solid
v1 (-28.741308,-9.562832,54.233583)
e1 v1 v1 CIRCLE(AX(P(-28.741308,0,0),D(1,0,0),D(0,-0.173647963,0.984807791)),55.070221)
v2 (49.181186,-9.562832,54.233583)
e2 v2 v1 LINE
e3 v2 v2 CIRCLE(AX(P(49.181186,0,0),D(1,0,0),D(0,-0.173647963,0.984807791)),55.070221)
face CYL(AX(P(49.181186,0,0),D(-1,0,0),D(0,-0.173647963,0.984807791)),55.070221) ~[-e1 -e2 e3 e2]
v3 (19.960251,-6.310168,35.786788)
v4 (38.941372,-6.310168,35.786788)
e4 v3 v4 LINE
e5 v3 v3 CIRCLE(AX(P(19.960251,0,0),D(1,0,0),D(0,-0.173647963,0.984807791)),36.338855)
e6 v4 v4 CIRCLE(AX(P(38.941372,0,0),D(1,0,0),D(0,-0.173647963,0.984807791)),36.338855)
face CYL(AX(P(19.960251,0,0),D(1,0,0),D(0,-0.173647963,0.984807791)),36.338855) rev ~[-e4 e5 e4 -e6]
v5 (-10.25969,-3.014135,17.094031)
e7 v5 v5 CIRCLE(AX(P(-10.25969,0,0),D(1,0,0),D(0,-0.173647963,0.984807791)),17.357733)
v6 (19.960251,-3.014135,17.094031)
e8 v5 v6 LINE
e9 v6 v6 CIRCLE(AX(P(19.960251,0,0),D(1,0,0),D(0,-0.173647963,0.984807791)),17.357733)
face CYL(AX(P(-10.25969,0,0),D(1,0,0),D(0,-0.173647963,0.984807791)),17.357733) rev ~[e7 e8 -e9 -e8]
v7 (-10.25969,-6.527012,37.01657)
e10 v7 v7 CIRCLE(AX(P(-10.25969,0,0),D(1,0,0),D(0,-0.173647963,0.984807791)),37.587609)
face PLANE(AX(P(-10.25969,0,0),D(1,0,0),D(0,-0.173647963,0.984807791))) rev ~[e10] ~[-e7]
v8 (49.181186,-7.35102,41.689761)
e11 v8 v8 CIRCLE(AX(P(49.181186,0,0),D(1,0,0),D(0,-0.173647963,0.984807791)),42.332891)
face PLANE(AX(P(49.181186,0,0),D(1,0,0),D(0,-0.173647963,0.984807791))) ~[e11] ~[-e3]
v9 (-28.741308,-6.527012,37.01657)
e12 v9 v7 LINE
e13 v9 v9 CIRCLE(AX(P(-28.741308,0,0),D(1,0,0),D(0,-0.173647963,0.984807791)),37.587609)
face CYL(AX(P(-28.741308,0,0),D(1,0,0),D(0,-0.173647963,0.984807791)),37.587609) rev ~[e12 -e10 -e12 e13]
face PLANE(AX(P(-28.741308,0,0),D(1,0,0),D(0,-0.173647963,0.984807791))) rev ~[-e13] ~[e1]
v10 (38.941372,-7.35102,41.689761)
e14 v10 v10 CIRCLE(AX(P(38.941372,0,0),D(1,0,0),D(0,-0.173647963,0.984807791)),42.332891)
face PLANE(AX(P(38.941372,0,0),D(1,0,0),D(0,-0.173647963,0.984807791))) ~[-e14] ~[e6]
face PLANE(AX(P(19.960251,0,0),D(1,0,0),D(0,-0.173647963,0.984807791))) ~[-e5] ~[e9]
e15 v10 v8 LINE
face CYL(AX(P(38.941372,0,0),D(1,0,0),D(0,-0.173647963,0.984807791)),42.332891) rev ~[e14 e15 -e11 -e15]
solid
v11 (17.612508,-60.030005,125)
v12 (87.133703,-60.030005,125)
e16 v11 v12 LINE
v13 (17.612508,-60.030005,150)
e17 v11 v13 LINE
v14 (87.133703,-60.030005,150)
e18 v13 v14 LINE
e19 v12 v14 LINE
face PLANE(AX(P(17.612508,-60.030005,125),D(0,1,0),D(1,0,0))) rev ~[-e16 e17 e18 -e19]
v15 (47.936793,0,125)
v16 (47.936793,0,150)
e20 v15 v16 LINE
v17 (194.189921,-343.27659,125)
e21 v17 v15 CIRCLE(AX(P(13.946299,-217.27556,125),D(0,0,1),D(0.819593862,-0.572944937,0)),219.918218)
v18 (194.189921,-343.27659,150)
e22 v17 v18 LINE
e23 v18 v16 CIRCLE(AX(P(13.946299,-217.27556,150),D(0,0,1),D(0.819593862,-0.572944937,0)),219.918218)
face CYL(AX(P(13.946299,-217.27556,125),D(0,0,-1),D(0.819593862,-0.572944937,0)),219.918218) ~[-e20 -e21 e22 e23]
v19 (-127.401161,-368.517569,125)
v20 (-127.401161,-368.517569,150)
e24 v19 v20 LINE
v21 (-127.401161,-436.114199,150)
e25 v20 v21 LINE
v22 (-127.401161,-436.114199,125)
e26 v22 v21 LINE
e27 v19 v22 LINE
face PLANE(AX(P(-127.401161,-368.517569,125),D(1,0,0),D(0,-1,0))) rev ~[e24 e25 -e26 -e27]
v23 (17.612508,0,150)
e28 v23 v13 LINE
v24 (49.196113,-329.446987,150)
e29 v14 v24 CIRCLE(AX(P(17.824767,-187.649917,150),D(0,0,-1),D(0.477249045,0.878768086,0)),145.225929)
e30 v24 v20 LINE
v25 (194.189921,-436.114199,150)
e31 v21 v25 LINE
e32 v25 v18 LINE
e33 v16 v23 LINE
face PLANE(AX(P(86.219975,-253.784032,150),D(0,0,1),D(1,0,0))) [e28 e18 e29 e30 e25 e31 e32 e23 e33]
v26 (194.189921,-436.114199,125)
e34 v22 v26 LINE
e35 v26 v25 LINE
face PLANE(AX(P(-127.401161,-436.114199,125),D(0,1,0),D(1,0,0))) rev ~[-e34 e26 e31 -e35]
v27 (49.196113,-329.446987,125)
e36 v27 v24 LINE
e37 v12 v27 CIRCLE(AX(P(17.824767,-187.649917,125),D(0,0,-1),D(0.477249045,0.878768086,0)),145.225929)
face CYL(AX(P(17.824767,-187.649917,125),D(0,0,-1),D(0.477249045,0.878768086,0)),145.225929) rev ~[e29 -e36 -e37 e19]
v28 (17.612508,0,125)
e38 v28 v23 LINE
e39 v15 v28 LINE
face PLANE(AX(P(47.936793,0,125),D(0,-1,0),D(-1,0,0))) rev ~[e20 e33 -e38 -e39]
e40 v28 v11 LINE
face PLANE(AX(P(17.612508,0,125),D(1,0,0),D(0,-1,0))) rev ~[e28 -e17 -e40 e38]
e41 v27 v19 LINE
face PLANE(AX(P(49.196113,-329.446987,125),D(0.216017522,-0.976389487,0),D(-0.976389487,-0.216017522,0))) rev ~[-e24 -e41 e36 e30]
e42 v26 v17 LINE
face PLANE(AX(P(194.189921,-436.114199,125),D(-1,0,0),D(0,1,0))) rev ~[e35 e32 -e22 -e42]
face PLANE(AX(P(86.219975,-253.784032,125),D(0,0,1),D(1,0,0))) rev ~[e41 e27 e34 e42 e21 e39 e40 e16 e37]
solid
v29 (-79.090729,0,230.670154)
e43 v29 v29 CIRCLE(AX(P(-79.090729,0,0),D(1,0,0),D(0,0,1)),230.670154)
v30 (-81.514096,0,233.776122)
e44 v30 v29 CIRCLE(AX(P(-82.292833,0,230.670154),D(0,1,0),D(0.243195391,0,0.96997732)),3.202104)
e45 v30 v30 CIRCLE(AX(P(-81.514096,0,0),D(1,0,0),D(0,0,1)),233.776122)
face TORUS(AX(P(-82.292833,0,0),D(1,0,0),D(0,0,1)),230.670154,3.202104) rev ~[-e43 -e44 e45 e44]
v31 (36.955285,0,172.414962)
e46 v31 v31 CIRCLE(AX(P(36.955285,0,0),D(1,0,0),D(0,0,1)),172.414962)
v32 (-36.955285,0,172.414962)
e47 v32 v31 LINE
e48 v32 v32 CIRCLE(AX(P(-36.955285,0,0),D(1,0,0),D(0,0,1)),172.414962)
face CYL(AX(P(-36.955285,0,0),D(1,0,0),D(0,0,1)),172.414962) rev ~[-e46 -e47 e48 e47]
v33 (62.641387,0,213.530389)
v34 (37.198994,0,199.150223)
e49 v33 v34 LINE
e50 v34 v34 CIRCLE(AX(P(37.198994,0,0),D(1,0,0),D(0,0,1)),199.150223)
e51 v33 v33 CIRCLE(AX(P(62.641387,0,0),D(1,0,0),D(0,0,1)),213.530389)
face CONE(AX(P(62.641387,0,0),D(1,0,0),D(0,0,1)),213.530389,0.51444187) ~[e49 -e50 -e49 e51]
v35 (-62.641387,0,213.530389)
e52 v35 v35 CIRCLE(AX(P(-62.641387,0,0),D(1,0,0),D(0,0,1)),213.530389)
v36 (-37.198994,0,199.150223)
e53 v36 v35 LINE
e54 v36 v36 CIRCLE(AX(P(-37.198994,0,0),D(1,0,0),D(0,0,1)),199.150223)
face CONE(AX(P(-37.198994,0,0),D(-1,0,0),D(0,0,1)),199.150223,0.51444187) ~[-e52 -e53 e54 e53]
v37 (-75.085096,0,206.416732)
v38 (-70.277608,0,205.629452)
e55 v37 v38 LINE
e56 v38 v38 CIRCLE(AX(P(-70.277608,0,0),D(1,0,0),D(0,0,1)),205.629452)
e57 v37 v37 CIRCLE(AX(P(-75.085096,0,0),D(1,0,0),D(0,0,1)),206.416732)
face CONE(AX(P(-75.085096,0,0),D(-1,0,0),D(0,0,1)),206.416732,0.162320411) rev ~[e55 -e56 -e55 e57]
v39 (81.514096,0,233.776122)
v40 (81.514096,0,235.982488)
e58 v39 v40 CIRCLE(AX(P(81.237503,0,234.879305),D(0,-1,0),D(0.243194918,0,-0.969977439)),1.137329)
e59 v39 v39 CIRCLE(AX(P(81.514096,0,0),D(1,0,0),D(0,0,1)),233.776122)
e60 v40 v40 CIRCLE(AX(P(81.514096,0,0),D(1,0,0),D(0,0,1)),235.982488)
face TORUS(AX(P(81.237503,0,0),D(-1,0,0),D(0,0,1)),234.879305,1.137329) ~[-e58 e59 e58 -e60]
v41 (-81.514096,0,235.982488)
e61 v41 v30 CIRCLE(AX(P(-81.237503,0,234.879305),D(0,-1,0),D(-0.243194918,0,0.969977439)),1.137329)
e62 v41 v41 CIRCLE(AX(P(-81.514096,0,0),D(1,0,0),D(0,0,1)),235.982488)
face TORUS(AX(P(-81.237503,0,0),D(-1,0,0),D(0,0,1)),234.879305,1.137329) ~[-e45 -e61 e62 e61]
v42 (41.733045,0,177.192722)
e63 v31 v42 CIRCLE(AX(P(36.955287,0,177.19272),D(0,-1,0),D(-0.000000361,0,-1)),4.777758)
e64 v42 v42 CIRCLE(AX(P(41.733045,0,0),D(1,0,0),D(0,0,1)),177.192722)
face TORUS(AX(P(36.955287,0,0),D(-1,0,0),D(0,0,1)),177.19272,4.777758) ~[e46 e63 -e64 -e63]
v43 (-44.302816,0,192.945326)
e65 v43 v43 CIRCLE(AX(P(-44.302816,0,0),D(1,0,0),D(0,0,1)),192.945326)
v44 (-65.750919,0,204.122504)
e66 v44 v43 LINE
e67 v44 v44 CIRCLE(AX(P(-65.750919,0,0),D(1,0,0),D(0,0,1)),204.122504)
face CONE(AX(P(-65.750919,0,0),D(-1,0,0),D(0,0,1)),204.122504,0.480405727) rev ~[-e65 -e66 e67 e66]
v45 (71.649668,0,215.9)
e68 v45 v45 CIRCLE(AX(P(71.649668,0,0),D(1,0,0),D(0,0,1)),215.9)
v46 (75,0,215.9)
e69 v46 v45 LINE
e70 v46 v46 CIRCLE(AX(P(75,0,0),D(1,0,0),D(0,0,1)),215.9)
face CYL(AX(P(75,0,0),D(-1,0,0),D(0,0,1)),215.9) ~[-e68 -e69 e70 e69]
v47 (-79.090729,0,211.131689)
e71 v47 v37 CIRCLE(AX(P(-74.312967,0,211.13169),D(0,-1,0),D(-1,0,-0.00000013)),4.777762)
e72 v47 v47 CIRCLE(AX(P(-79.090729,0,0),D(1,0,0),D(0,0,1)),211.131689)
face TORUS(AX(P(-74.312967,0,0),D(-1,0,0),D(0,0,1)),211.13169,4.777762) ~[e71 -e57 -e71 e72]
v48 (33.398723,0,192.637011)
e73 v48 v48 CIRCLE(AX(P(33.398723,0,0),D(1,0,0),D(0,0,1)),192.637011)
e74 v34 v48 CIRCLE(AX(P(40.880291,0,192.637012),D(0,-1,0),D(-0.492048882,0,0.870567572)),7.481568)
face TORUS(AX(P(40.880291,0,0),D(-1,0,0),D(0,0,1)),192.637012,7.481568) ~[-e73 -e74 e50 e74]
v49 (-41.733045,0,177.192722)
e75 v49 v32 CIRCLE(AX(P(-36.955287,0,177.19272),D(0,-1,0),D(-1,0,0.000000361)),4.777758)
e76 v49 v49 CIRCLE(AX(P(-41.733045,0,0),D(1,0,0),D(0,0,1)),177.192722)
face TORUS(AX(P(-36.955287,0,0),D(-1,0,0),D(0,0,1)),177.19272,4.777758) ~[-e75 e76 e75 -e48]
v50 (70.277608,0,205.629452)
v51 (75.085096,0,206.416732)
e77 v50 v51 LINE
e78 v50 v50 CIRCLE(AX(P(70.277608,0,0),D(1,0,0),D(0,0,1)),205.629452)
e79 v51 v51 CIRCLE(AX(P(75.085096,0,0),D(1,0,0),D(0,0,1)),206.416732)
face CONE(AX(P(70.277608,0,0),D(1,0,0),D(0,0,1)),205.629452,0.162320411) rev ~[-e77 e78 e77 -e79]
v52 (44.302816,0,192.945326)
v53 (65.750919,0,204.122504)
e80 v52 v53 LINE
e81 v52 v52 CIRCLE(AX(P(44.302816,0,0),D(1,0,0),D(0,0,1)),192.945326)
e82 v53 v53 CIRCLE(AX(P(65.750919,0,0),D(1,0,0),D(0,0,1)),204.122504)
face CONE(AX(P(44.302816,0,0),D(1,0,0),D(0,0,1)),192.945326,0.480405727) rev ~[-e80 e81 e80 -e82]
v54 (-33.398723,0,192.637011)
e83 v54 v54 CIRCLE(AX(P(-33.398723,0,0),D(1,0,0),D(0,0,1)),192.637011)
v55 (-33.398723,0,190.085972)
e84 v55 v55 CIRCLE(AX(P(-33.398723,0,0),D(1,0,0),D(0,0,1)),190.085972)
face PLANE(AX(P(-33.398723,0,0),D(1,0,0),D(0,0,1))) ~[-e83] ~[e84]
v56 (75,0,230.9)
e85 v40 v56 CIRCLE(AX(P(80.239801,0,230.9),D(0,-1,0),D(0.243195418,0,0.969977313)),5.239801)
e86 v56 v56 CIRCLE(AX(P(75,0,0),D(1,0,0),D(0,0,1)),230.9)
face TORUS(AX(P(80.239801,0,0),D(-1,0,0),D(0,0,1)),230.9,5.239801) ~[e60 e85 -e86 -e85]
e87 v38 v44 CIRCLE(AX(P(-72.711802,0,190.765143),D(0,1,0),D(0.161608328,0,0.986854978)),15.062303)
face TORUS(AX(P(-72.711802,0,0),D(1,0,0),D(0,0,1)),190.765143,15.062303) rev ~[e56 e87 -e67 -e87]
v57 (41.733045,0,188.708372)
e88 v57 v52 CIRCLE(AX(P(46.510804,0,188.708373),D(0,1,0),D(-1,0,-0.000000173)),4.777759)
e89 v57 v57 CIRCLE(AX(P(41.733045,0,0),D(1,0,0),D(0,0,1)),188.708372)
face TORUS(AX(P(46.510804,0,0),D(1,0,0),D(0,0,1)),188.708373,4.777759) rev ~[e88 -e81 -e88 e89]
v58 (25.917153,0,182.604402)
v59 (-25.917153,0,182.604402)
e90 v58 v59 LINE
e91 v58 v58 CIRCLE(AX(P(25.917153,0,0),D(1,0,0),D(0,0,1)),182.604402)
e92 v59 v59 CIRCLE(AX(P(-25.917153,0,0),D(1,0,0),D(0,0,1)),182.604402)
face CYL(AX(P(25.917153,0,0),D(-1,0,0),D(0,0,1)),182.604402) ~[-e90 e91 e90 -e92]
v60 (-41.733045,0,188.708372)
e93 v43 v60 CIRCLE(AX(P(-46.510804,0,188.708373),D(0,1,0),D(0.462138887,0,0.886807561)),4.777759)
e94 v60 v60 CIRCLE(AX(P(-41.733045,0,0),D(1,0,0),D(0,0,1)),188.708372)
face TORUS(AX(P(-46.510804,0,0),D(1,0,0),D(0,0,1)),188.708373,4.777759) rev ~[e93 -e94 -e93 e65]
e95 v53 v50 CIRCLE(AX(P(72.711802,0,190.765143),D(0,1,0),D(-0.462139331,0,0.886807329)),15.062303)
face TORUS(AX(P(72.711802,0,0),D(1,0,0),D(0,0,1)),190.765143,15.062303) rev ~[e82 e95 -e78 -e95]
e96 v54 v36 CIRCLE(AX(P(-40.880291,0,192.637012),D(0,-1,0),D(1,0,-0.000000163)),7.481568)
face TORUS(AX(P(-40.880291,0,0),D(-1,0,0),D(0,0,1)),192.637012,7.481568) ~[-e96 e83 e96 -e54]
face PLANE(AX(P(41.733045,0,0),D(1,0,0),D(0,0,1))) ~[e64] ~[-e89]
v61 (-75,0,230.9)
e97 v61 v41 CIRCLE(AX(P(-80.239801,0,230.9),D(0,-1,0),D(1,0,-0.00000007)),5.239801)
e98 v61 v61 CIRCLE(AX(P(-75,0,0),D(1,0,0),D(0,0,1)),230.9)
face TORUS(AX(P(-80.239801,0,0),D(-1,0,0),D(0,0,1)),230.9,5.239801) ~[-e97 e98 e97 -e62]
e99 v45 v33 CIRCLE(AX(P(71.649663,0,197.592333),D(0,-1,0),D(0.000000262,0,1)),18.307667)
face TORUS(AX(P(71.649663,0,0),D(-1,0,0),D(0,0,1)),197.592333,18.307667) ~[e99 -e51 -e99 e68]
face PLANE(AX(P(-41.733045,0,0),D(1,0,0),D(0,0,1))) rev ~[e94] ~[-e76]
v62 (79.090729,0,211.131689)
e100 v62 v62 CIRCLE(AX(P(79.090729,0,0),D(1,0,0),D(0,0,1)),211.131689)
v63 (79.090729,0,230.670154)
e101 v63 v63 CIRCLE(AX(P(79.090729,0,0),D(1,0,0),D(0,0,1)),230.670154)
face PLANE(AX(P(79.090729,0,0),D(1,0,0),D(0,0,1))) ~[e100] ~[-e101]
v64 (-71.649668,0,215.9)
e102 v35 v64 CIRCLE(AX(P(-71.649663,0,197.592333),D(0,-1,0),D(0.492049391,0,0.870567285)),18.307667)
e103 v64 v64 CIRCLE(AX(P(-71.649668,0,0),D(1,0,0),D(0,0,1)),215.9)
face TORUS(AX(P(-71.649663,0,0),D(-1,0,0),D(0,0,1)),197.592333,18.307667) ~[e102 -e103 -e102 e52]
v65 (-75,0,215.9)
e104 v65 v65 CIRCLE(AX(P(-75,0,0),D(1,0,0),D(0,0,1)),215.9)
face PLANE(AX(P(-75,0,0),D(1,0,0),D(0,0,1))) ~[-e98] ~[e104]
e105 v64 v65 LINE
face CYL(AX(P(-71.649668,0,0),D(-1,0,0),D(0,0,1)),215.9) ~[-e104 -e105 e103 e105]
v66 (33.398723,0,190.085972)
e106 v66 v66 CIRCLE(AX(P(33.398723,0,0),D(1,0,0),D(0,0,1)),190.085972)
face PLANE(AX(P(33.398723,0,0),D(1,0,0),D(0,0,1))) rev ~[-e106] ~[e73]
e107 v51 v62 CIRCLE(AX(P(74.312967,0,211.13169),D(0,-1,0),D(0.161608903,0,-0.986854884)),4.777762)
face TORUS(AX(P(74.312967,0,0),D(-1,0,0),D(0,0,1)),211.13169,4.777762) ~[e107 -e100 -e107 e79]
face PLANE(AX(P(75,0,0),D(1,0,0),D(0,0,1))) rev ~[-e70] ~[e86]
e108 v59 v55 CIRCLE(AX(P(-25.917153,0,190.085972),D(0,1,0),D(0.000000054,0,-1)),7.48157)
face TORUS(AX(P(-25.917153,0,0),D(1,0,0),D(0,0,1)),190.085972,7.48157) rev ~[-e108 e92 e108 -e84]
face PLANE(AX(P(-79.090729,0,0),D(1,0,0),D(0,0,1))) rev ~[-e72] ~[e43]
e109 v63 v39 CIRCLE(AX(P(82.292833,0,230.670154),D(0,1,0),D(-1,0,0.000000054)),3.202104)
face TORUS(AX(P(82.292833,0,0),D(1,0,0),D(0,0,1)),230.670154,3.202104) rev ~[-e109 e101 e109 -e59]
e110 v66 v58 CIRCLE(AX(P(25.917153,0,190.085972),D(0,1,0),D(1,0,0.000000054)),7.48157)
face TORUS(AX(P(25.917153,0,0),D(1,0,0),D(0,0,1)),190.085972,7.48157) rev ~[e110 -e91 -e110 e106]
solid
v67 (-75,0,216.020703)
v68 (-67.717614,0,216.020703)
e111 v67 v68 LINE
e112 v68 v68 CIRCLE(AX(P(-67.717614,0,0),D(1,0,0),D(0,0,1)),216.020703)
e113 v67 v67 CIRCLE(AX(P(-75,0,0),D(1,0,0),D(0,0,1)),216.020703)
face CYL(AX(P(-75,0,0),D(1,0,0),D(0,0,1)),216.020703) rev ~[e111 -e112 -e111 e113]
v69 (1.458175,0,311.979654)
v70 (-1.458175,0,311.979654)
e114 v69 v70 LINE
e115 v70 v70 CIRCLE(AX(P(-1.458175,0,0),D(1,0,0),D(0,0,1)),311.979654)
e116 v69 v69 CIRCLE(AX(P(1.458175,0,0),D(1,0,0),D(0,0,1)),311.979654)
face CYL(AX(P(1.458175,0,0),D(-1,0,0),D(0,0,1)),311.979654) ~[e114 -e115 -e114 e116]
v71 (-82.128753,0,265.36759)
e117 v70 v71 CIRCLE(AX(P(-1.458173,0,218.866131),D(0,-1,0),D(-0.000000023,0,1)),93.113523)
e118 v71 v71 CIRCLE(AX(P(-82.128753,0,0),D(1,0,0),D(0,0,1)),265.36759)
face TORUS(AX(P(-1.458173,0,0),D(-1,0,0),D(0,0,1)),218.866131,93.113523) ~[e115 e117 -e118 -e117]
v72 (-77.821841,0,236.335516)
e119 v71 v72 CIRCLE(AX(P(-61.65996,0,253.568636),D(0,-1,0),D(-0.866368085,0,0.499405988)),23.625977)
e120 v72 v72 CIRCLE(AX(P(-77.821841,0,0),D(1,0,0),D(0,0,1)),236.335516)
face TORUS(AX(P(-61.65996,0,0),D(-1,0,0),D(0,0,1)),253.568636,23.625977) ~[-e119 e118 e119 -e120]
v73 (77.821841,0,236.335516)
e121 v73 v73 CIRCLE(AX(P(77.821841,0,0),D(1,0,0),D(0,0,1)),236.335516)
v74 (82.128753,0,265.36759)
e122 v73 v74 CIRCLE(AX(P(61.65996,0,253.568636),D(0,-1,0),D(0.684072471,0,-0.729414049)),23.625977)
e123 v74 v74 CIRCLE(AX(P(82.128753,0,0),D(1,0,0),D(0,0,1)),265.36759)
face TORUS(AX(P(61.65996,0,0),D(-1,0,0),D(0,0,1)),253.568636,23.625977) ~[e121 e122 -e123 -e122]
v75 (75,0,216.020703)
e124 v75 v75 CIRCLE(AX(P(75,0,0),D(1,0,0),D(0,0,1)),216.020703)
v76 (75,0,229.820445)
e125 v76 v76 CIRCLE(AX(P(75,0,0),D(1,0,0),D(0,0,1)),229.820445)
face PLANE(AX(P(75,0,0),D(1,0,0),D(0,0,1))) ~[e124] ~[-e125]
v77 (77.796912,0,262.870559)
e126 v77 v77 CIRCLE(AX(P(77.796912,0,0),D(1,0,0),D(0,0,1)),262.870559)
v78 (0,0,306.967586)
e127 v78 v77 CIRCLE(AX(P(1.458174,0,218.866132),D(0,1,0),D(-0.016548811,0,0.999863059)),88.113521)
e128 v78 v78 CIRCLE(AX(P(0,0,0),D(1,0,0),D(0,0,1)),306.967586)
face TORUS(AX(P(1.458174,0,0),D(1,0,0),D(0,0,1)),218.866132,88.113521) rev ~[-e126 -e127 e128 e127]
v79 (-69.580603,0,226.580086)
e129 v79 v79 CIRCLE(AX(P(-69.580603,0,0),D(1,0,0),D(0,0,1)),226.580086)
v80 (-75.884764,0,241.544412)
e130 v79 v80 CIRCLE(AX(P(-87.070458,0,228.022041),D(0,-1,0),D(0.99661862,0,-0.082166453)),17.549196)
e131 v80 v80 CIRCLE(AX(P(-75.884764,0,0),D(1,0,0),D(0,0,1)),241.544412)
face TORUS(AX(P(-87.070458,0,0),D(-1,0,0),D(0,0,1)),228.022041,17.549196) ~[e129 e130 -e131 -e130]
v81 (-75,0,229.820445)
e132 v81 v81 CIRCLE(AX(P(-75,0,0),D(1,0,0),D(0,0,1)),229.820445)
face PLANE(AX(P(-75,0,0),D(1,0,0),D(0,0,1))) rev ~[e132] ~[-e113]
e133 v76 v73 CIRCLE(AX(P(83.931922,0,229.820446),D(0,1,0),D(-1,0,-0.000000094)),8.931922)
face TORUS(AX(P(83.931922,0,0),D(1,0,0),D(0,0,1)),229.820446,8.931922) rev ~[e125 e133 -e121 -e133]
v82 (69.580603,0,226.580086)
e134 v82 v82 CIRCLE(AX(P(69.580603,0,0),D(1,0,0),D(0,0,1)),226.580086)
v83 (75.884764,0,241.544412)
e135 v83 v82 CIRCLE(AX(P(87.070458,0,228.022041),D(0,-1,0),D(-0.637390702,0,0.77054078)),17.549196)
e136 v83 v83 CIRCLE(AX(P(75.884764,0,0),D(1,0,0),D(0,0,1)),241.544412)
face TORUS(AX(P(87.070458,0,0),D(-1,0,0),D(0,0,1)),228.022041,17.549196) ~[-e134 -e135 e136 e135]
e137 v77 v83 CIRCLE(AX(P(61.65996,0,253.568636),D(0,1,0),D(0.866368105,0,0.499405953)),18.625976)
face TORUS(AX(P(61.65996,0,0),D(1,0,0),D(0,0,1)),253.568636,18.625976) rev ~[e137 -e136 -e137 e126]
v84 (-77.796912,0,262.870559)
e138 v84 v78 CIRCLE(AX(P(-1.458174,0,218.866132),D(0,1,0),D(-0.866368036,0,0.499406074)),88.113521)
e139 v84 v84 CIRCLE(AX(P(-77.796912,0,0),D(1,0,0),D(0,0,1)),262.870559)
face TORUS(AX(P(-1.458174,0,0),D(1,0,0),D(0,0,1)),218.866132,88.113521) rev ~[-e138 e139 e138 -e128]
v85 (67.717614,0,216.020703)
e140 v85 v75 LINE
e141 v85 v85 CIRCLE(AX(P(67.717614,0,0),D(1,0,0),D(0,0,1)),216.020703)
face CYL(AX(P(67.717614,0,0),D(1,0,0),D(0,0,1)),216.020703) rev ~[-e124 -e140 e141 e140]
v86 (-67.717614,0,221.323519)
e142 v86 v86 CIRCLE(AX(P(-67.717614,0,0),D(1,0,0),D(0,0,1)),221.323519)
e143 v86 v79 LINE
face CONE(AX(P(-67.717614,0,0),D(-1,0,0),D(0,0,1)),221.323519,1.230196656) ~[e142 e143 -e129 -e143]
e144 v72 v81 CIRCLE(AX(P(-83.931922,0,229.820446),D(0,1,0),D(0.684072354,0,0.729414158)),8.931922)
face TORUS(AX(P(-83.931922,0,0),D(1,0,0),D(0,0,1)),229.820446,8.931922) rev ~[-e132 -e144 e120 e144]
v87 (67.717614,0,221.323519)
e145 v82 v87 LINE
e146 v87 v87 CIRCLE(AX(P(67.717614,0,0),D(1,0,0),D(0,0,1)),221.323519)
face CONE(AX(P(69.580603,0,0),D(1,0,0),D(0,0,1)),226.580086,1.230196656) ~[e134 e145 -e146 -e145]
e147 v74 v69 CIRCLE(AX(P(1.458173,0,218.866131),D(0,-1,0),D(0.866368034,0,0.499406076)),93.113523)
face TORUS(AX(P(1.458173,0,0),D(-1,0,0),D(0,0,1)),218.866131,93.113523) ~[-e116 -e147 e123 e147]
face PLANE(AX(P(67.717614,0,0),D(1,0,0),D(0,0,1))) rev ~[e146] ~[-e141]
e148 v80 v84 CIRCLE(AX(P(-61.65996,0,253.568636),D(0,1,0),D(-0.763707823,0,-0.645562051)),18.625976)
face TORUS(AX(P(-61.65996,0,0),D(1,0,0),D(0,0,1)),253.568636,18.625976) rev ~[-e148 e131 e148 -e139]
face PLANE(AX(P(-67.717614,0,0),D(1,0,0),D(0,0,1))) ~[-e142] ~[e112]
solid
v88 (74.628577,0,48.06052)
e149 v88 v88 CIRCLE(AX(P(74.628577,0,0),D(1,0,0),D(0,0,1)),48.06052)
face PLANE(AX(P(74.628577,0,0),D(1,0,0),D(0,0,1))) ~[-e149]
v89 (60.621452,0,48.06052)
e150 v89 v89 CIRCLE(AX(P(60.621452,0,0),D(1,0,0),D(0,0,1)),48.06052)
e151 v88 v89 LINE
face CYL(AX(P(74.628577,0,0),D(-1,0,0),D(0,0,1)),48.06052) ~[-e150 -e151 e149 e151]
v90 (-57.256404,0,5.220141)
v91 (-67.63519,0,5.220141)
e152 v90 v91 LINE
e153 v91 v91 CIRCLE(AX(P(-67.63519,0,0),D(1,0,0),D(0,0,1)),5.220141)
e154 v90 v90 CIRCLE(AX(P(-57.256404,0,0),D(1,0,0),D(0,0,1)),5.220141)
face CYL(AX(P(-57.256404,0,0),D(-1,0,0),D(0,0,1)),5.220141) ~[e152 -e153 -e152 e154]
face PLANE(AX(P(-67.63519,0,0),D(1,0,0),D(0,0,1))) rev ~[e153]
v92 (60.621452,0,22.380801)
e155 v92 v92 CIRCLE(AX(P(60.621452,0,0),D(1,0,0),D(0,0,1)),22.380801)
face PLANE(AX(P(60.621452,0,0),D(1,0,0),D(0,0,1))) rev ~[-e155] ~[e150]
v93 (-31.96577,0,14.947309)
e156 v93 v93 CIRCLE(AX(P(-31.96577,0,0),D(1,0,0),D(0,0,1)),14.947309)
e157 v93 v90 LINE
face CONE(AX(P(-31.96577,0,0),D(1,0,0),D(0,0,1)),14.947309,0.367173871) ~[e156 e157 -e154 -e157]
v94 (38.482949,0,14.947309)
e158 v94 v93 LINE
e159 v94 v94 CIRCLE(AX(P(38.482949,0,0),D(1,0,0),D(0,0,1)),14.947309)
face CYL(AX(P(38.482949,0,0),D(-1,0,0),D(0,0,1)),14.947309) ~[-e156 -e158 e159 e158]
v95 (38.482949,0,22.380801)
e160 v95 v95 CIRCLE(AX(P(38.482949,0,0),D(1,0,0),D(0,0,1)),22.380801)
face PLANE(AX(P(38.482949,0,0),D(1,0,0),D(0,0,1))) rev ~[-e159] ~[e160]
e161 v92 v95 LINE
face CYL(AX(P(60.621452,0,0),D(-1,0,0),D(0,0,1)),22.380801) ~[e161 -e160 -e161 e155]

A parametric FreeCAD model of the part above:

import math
import FreeCAD as App
import Part
import Sketcher
from FreeCAD import Vector


def add_polygon(sketch, points):
    """Adds a closed chain of lines whose ends are joined by coincident constraints."""
    first, n = sketch.GeometryCount, len(points)
    for a, b in zip(points, points[1:] + points[:1]):
        sketch.addGeometry(Part.LineSegment(App.Vector(*a, 0), App.Vector(*b, 0)), False)
    for i in range(n):
        sketch.addConstraint(Sketcher.Constraint("Coincident", first + i, 2, first + (i + 1) % n, 1))

doc = App.newDocument("Part")
body = doc.addObject("PartDesign::Body", "Body")

# Sketch on XZ plane
sketch1 = body.newObject("Sketcher::SketchObject", "Sketch")
sketch1.AttachmentSupport = (doc.getObject("XZ_Plane"), [""])
sketch1.MapMode = "FlatFace"
sketch1.addGeometry([
    Part.LineSegment(Vector(-79.090729, 230.670154, 0), Vector(-79.090729, 211.131689, 0)),  # 0
    Part.ArcOfCircle(Part.Circle(Vector(-74.312967, 211.13169, 0), Vector(0, 0, 1), 4.777762), math.radians(-179.999993), math.radians(-99.300295)),  # 1
    Part.LineSegment(Vector(-75.085096, 206.416732, 0), Vector(-70.277608, 205.629452, 0)),  # 2
    Part.ArcOfCircle(Part.Circle(Vector(-72.711802, 190.765143, 0), Vector(0, 0, 1), 15.062303), math.radians(62.474759), math.radians(80.699738)),  # 3
    Part.LineSegment(Vector(-65.750919, 204.122504, 0), Vector(-44.302816, 192.945326, 0)),  # 4
    Part.ArcOfCircle(Part.Circle(Vector(-46.510804, 188.708373, 0), Vector(0, 0, 1), 4.777759), math.radians(-0.00001), math.radians(62.474788)),  # 5
    Part.LineSegment(Vector(-41.733045, 188.708372, 0), Vector(-41.733045, 177.192722, 0)),  # 6
    Part.ArcOfCircle(Part.Circle(Vector(-36.955287, 177.19272, 0), Vector(0, 0, 1), 4.777758), math.radians(179.999979), math.radians(270.000021)),  # 7
    Part.LineSegment(Vector(-36.955285, 172.414962, 0), Vector(36.955285, 172.414962, 0)),  # 8
    Part.ArcOfCircle(Part.Circle(Vector(36.955287, 177.19272, 0), Vector(0, 0, 1), 4.777758), math.radians(-90.000021), math.radians(0.000021)),  # 9
    Part.LineSegment(Vector(41.733045, 177.192722, 0), Vector(41.733045, 188.708372, 0)),  # 10
    Part.ArcOfCircle(Part.Circle(Vector(46.510804, 188.708373, 0), Vector(0, 0, 1), 4.777759), math.radians(117.525212), math.radians(180.00001)),  # 11
    Part.LineSegment(Vector(44.302816, 192.945326, 0), Vector(65.750919, 204.122504, 0)),  # 12
    Part.ArcOfCircle(Part.Circle(Vector(72.711802, 190.765143, 0), Vector(0, 0, 1), 15.062303), math.radians(99.300262), math.radians(117.525241)),  # 13
    Part.LineSegment(Vector(70.277608, 205.629452, 0), Vector(75.085096, 206.416732, 0)),  # 14
    Part.ArcOfCircle(Part.Circle(Vector(74.312967, 211.13169, 0), Vector(0, 0, 1), 4.777762), math.radians(-80.699705), math.radians(-0.000007)),  # 15
    Part.LineSegment(Vector(79.090729, 211.131689, 0), Vector(79.090729, 230.670154, 0)),  # 16
    Part.ArcOfCircle(Part.Circle(Vector(82.292833, 230.670154, 0), Vector(0, 0, 1), 3.202104), math.radians(104.075212), math.radians(179.999997)),  # 17
    Part.ArcOfCircle(Part.Circle(Vector(81.237503, 234.879305, 0), Vector(0, 0, 1), 1.137329), math.radians(-75.924816), math.radians(75.924816)),  # 18
    Part.ArcOfCircle(Part.Circle(Vector(80.239801, 230.9, 0), Vector(0, 0, 1), 5.239801), math.radians(75.924786), math.radians(180.000004)),  # 19
    Part.LineSegment(Vector(75, 230.9, 0), Vector(75, 215.9, 0)),  # 20
    Part.LineSegment(Vector(75, 215.9, 0), Vector(71.649668, 215.9, 0)),  # 21
    Part.ArcOfCircle(Part.Circle(Vector(71.649663, 197.592333, 0), Vector(0, 0, 1), 18.307667), math.radians(89.999985), math.radians(119.475371)),  # 22
    Part.LineSegment(Vector(62.641387, 213.530389, 0), Vector(37.198994, 199.150223, 0)),  # 23
    Part.ArcOfCircle(Part.Circle(Vector(40.880291, 192.637012, 0), Vector(0, 0, 1), 7.481568), math.radians(119.475338), math.radians(180.000009)),  # 24
    Part.LineSegment(Vector(33.398723, 192.637011, 0), Vector(33.398723, 190.085972, 0)),  # 25
    Part.ArcOfCircle(Part.Circle(Vector(25.917153, 190.085972, 0), Vector(0, 0, 1), 7.48157), math.radians(-90.000003), math.radians(0.000003)),  # 26
    Part.LineSegment(Vector(25.917153, 182.604402, 0), Vector(-25.917153, 182.604402, 0)),  # 27
    Part.ArcOfCircle(Part.Circle(Vector(-25.917153, 190.085972, 0), Vector(0, 0, 1), 7.48157), math.radians(179.999997), math.radians(270.000003)),  # 28
    Part.LineSegment(Vector(-33.398723, 190.085972, 0), Vector(-33.398723, 192.637011, 0)),  # 29
    Part.ArcOfCircle(Part.Circle(Vector(-40.880291, 192.637012, 0), Vector(0, 0, 1), 7.481568), math.radians(-0.000009), math.radians(60.524662)),  # 30
    Part.LineSegment(Vector(-37.198994, 199.150223, 0), Vector(-62.641387, 213.530389, 0)),  # 31
    Part.ArcOfCircle(Part.Circle(Vector(-71.649663, 197.592333, 0), Vector(0, 0, 1), 18.307667), math.radians(60.524629), math.radians(90.000015)),  # 32
    Part.LineSegment(Vector(-71.649668, 215.9, 0), Vector(-75, 215.9, 0)),  # 33
    Part.LineSegment(Vector(-75, 215.9, 0), Vector(-75, 230.9, 0)),  # 34
    Part.ArcOfCircle(Part.Circle(Vector(-80.239801, 230.9, 0), Vector(0, 0, 1), 5.239801), math.radians(-0.000004), math.radians(104.075214)),  # 35
    Part.ArcOfCircle(Part.Circle(Vector(-81.237503, 234.879305, 0), Vector(0, 0, 1), 1.137329), math.radians(104.075184), math.radians(255.924816)),  # 36
    Part.ArcOfCircle(Part.Circle(Vector(-82.292833, 230.670154, 0), Vector(0, 0, 1), 3.202104), math.radians(0.000003), math.radians(75.924788)),  # 37
], False)
sketch1.addConstraint([
    Sketcher.Constraint("Coincident", 0, 2, 1, 1),
    Sketcher.Constraint("Coincident", 1, 2, 2, 1),
    Sketcher.Constraint("Coincident", 2, 2, 3, 2),
    Sketcher.Constraint("Coincident", 3, 1, 4, 1),
    Sketcher.Constraint("Coincident", 4, 2, 5, 2),
    Sketcher.Constraint("Coincident", 5, 1, 6, 1),
    Sketcher.Constraint("Coincident", 6, 2, 7, 1),
    Sketcher.Constraint("Coincident", 7, 2, 8, 1),
    Sketcher.Constraint("Coincident", 8, 2, 9, 1),
    Sketcher.Constraint("Coincident", 9, 2, 10, 1),
    Sketcher.Constraint("Coincident", 10, 2, 11, 2),
    Sketcher.Constraint("Coincident", 11, 1, 12, 1),
    Sketcher.Constraint("Coincident", 12, 2, 13, 2),
    Sketcher.Constraint("Coincident", 13, 1, 14, 1),
    Sketcher.Constraint("Coincident", 14, 2, 15, 1),
    Sketcher.Constraint("Coincident", 15, 2, 16, 1),
    Sketcher.Constraint("Coincident", 16, 2, 17, 2),
    Sketcher.Constraint("Coincident", 17, 1, 18, 1),
    Sketcher.Constraint("Coincident", 18, 2, 19, 1),
    Sketcher.Constraint("Coincident", 19, 2, 20, 1),
    Sketcher.Constraint("Coincident", 20, 2, 21, 1),
    Sketcher.Constraint("Coincident", 21, 2, 22, 1),
    Sketcher.Constraint("Coincident", 22, 2, 23, 1),
    Sketcher.Constraint("Coincident", 23, 2, 24, 1),
    Sketcher.Constraint("Coincident", 24, 2, 25, 1),
    Sketcher.Constraint("Coincident", 25, 2, 26, 2),
    Sketcher.Constraint("Coincident", 26, 1, 27, 1),
    Sketcher.Constraint("Coincident", 27, 2, 28, 2),
    Sketcher.Constraint("Coincident", 28, 1, 29, 1),
    Sketcher.Constraint("Coincident", 29, 2, 30, 1),
    Sketcher.Constraint("Coincident", 30, 2, 31, 1),
    Sketcher.Constraint("Coincident", 31, 2, 32, 1),
    Sketcher.Constraint("Coincident", 32, 2, 33, 1),
    Sketcher.Constraint("Coincident", 33, 2, 34, 1),
    Sketcher.Constraint("Coincident", 34, 2, 35, 1),
    Sketcher.Constraint("Coincident", 35, 2, 36, 1),
    Sketcher.Constraint("Coincident", 36, 2, 37, 2),
    Sketcher.Constraint("Coincident", 37, 1, 0, 1),
    Sketcher.Constraint("Vertical", 0),
    Sketcher.Constraint("Vertical", 6),
    Sketcher.Constraint("Horizontal", 8),
    Sketcher.Constraint("Vertical", 10),
    Sketcher.Constraint("Vertical", 16),
    Sketcher.Constraint("Vertical", 20),
    Sketcher.Constraint("Horizontal", 21),
    Sketcher.Constraint("Vertical", 25),
    Sketcher.Constraint("Horizontal", 27),
    Sketcher.Constraint("Vertical", 29),
    Sketcher.Constraint("Horizontal", 33),
    Sketcher.Constraint("Vertical", 34),
    Sketcher.Constraint("DistanceY", 20, 2, 20, 1, 15.0),
    Sketcher.Constraint("DistanceY", 34, 1, 34, 2, 15.0),
    Sketcher.Constraint("DistanceX", -1, 1, 19, 2, 75.0),
    Sketcher.Constraint("DistanceX", 33, 2, -1, 1, 75.0),
    Sketcher.Constraint("DistanceY", -1, 1, 19, 3, 230.9),
    Sketcher.Constraint("DistanceY", -1, 1, 35, 3, 230.9),
    Sketcher.Constraint("DistanceY", -1, 1, 19, 2, 230.9),
    Sketcher.Constraint("DistanceY", -1, 1, 32, 2, 215.9),
    Sketcher.Constraint("Radius", 19, 5.239801),
    Sketcher.Constraint("Radius", 35, 5.239801),
    Sketcher.Constraint("Radius", 1, 4.777762),
    Sketcher.Constraint("Radius", 5, 4.777759),
    Sketcher.Constraint("Radius", 7, 4.777758),
    Sketcher.Constraint("Radius", 9, 4.777758),
    Sketcher.Constraint("Radius", 11, 4.777759),
    Sketcher.Constraint("Radius", 15, 4.777762),
    Sketcher.Constraint("Radius", 18, 1.137329),
    Sketcher.Constraint("Radius", 24, 7.481568),
    Sketcher.Constraint("Radius", 26, 7.48157),
    Sketcher.Constraint("Radius", 28, 7.48157),
    Sketcher.Constraint("Radius", 30, 7.481568),
    Sketcher.Constraint("Radius", 36, 1.137329),
    Sketcher.Constraint("Radius", 3, 15.062303),
    Sketcher.Constraint("Radius", 13, 15.062303),
    Sketcher.Constraint("Radius", 17, 3.202104),
    Sketcher.Constraint("Radius", 22, 18.307667),
    Sketcher.Constraint("Radius", 32, 18.307667),
    Sketcher.Constraint("Radius", 37, 3.202104),
    Sketcher.Constraint("DistanceX", 13, 3, 19, 3, 7.527999),
    Sketcher.Constraint("DistanceX", 35, 3, 3, 3, 7.527999),
    Sketcher.Constraint("DistanceX", 8, 1, 8, 2, 73.91057),
    Sketcher.Constraint("DistanceX", 21, 2, 21, 1, 3.350332),
    Sketcher.Constraint("DistanceX", 33, 2, 33, 1, 3.350332),
    Sketcher.Constraint("DistanceY", 6, 2, 6, 1, 11.51565),
    Sketcher.Constraint("DistanceY", 10, 1, 10, 2, 11.51565),
    Sketcher.Constraint("DistanceY", 25, 2, 25, 1, 2.551039),
    Sketcher.Constraint("DistanceY", 29, 1, 29, 2, 2.551039),
    Sketcher.Constraint("DistanceY", -1, 1, 27, 2, 182.604402),
    Sketcher.Constraint("DistanceX", 13, 3, 18, 3, 8.525702),
    Sketcher.Constraint("DistanceX", 11, 3, 18, 3, 34.726699),
    Sketcher.Constraint("DistanceY", 11, 3, 26, 3, 1.377599),
    Sketcher.Constraint("DistanceY", 5, 3, 28, 3, 1.377599),
    Sketcher.Constraint("DistanceX", 36, 3, 3, 3, 8.525702),
    Sketcher.Constraint("DistanceX", 36, 3, 5, 3, 34.726699),
    Sketcher.Constraint("DistanceY", 32, 3, 1, 2, 8.824399),
    Sketcher.Constraint("DistanceY", 5, 1, 28, 3, 1.3776),
    Sketcher.Constraint("DistanceY", 10, 2, 26, 3, 1.3776),
    Sketcher.Constraint("DistanceY", 22, 3, 14, 2, 8.824399),
    Sketcher.Constraint("DistanceX", 21, 2, 15, 3, 2.663299),
    Sketcher.Constraint("DistanceY", 15, 3, 22, 2, 2.398699),
    Sketcher.Constraint("DistanceY", 10, 2, 25, 2, 1.3776),
    Sketcher.Constraint("DistanceY", 5, 1, 28, 1, 1.3776),
    Sketcher.Constraint("DistanceY", 1, 3, 31, 2, 2.398699),
    Sketcher.Constraint("DistanceY", 0, 2, 31, 2, 2.3987),
    Sketcher.Constraint("DistanceX", 1, 3, 32, 2, 2.663299),
    Sketcher.Constraint("Distance", 4, 24.185748),
    Sketcher.Constraint("Distance", 12, 24.185748),
    Sketcher.Constraint("DistanceX", 27, 2, 27, 1, 51.834306),
    Sketcher.Constraint("DistanceY", 0, 2, 0, 1, 19.538465),
    Sketcher.Constraint("DistanceY", 16, 1, 16, 2, 19.538465),
    Sketcher.Constraint("DistanceY", -1, 1, 1, 3, 211.13169),
    Sketcher.Constraint("DistanceY", -1, 1, 7, 3, 177.19272),
    Sketcher.Constraint("DistanceY", -1, 1, 15, 3, 211.13169),
    Sketcher.Constraint("DistanceX", -1, 1, 24, 3, 40.880291),
    Sketcher.Constraint("DistanceX", 30, 3, -1, 1, 40.880291),
    Sketcher.Constraint("DistanceX", 2, 2, -1, 1, 70.277608),
    Sketcher.Constraint("DistanceY", -1, 1, 2, 2, 205.629452),
    Sketcher.Constraint("DistanceX", 3, 1, -1, 1, 65.750919),
    Sketcher.Constraint("DistanceX", -1, 1, 12, 2, 65.750919),
    Sketcher.Constraint("DistanceY", -1, 1, 15, 2, 211.131689),
    Sketcher.Constraint("DistanceY", -1, 1, 18, 2, 235.982488),
    Sketcher.Constraint("DistanceY", -1, 1, 35, 2, 235.982488),
    Sketcher.Constraint("DistanceY", -1, 1, 36, 2, 233.776122),
    Sketcher.Constraint("DistanceY", 11, 3, 13, 3, 2.056771),
    Sketcher.Constraint("DistanceX", 22, 3, 13, 3, 1.062138),
    Sketcher.Constraint("DistanceY", 11, 3, 24, 3, 3.928639),
    Sketcher.Constraint("DistanceY", 5, 3, 30, 3, 3.928639),
    Sketcher.Constraint("DistanceX", 3, 3, 32, 3, 1.062138),
    Sketcher.Constraint("DistanceX", 6, 2, 7, 2, 4.77776),
    Sketcher.Constraint("DistanceX", 12, 2, 13, 1, 4.526689),
    Sketcher.Constraint("DistanceY", 19, 3, 17, 1, 2.876122),
    Sketcher.Constraint("DistanceY", 24, 3, 23, 2, 6.513211),
    Sketcher.Constraint("DistanceX", 26, 1, 25, 2, 7.48157),
    Sketcher.Constraint("DistanceY", 30, 3, 30, 2, 6.513211),
])
revolution = body.newObject("PartDesign::Revolution", "Revolution")
revolution.Profile = sketch1
revolution.ReferenceAxis = (sketch1, ["H_Axis"])
revolution.Angle = 360
body2 = doc.addObject("PartDesign::Body", "Body001")

# Sketch on XZ plane
sketch2 = body2.newObject("Sketcher::SketchObject", "Sketch001")
sketch2.AttachmentSupport = (doc.getObject("XZ_Plane001"), [""])
sketch2.MapMode = "FlatFace"
sketch2.addGeometry([
    Part.LineSegment(Vector(-75, 229.8, 0), Vector(-75, 216, 0)),  # 0
    Part.LineSegment(Vector(-75, 216, 0), Vector(-67.7, 216, 0)),  # 1
    Part.LineSegment(Vector(-67.7, 216, 0), Vector(-67.7, 221.3, 0)),  # 2
    Part.LineSegment(Vector(-67.7, 221.3, 0), Vector(-69.6, 226.6, 0)),  # 3
    Part.ArcOfCircle(Part.Circle(Vector(-87.1, 228, 0), Vector(0, 0, 1), 17.5), math.radians(-5), math.radians(50)),  # 4
    Part.ArcOfCircle(Part.Circle(Vector(-61.7, 253.6, 0), Vector(0, 0, 1), 18.6), math.radians(150), math.radians(220)),  # 5
    Part.ArcOfCircle(Part.Circle(Vector(-1.5, 218.9, 0), Vector(0, 0, 1), 88.1), math.radians(89), math.radians(150)),  # 6
    Part.ArcOfCircle(Part.Circle(Vector(1.5, 218.9, 0), Vector(0, 0, 1), 88.1), math.radians(30), math.radians(91)),  # 7
    Part.ArcOfCircle(Part.Circle(Vector(61.7, 253.6, 0), Vector(0, 0, 1), 18.6), math.radians(-40), math.radians(30)),  # 8
    Part.ArcOfCircle(Part.Circle(Vector(87.1, 228, 0), Vector(0, 0, 1), 17.5), math.radians(130), math.radians(185)),  # 9
    Part.LineSegment(Vector(69.6, 226.6, 0), Vector(67.7, 221.3, 0)),  # 10
    Part.LineSegment(Vector(67.7, 221.3, 0), Vector(67.7, 216, 0)),  # 11
    Part.LineSegment(Vector(67.7, 216, 0), Vector(75, 216, 0)),  # 12
    Part.LineSegment(Vector(75, 216, 0), Vector(75, 229.8, 0)),  # 13
    Part.ArcOfCircle(Part.Circle(Vector(83.9, 229.8, 0), Vector(0, 0, 1), 8.9), math.radians(133), math.radians(180)),  # 14
    Part.ArcOfCircle(Part.Circle(Vector(61.7, 253.6, 0), Vector(0, 0, 1), 23.6), math.radians(-47), math.radians(30)),  # 15
    Part.ArcOfCircle(Part.Circle(Vector(1.5, 218.9, 0), Vector(0, 0, 1), 93.1), math.radians(30), math.radians(90)),  # 16
    Part.LineSegment(Vector(1.5, 312, 0), Vector(-1.5, 312, 0)),  # 17
    Part.ArcOfCircle(Part.Circle(Vector(-1.5, 218.9, 0), Vector(0, 0, 1), 93.1), math.radians(90), math.radians(150)),  # 18
    Part.ArcOfCircle(Part.Circle(Vector(-61.7, 253.6, 0), Vector(0, 0, 1), 23.6), math.radians(150), math.radians(227)),  # 19
    Part.ArcOfCircle(Part.Circle(Vector(-83.9, 229.8, 0), Vector(0, 0, 1), 8.9), math.radians(0), math.radians(47)),  # 20
], False)
sketch2.addConstraint([
    Sketcher.Constraint("Coincident", 0, 2, 1, 1),
    Sketcher.Constraint("Coincident", 1, 2, 2, 1),
    Sketcher.Constraint("Coincident", 2, 2, 3, 1),
    Sketcher.Constraint("Coincident", 3, 2, 4, 1),
    Sketcher.Constraint("Coincident", 4, 2, 5, 2),
    Sketcher.Constraint("Tangent", 5, 1, 6, 2),
    Sketcher.Constraint("Coincident", 6, 1, 7, 2),
    Sketcher.Constraint("Tangent", 7, 1, 8, 2),
    Sketcher.Constraint("Coincident", 8, 1, 9, 1),
    Sketcher.Constraint("Coincident", 9, 2, 10, 1),
    Sketcher.Constraint("Coincident", 10, 2, 11, 1),
    Sketcher.Constraint("Coincident", 11, 2, 12, 1),
    Sketcher.Constraint("Coincident", 12, 2, 13, 1),
    Sketcher.Constraint("Tangent", 13, 2, 14, 2),
    Sketcher.Constraint("Tangent", 14, 1, 15, 1),
    Sketcher.Constraint("Tangent", 15, 2, 16, 1),
    Sketcher.Constraint("Tangent", 16, 2, 17, 1),
    Sketcher.Constraint("Tangent", 17, 2, 18, 1),
    Sketcher.Constraint("Tangent", 18, 2, 19, 1),
    Sketcher.Constraint("Tangent", 19, 2, 20, 2),
    Sketcher.Constraint("Tangent", 20, 1, 0, 1),
    Sketcher.Constraint("Vertical", 0),
    Sketcher.Constraint("Horizontal", 1),
    Sketcher.Constraint("Vertical", 2),
    Sketcher.Constraint("Vertical", 11),
    Sketcher.Constraint("Horizontal", 12),
    Sketcher.Constraint("Vertical", 13),
    Sketcher.Constraint("Horizontal", 17),
    Sketcher.Constraint("Coincident", 15, 3, 8, 3),
    Sketcher.Constraint("Coincident", 16, 3, 7, 3),
    Sketcher.Constraint("Coincident", 18, 3, 6, 3),
    Sketcher.Constraint("Coincident", 19, 3, 5, 3),
    Sketcher.Constraint("Equal", 6, 7),
    Sketcher.Constraint("Equal", 5, 8),
    Sketcher.Constraint("Equal", 4, 9),
    Sketcher.Constraint("Equal", 16, 18),
    Sketcher.Constraint("Equal", 14, 20),
    Sketcher.Constraint("Symmetric", 5, 3, 8, 3, -2),
    Sketcher.Constraint("Symmetric", 4, 3, 9, 3, -2),
    Sketcher.Constraint("Symmetric", 2, 2, 10, 2, -2),
    Sketcher.Constraint("Symmetric", 0, 2, 12, 2, -2),
    Sketcher.Constraint("Horizontal", 3, 2, 9, 2),
    Sketcher.Constraint("DistanceX", 0, 2, -1, 1, 75.0),
    Sketcher.Constraint("Radius", 6, 88.113521),
    Sketcher.Constraint("Radius", 14, 8.931922),
    Sketcher.Constraint("Radius", 4, 17.549196),
    Sketcher.Constraint("Radius", 5, 18.625976),
    Sketcher.Constraint("Radius", 15, 23.625977),
    Sketcher.Constraint("DistanceX", 17, 2, 17, 1, 2.91635),
    Sketcher.Constraint("DistanceX", 1, 1, 1, 2, 7.282386),
    Sketcher.Constraint("DistanceY", 0, 2, 0, 1, 13.799742),
    Sketcher.Constraint("DistanceY", 2, 1, 2, 2, 5.302816),
    Sketcher.Constraint("DistanceX", 4, 3, -1, 1, 87.070458),
    Sketcher.Constraint("DistanceY", -1, 1, 4, 3, 228.022041),
    Sketcher.Constraint("DistanceX", 5, 3, -1, 1, 61.65996),
    Sketcher.Constraint("DistanceY", -1, 1, 6, 3, 218.866132),
    Sketcher.Constraint("DistanceX", 3, 2, 2, 2, 1.862989),
])
revolution2 = body2.newObject("PartDesign::Revolution", "Revolution001")
revolution2.Profile = sketch2
revolution2.ReferenceAxis = (sketch2, ["H_Axis"])
revolution2.Angle = 360
body3 = doc.addObject("PartDesign::Body", "Body002")

# Sketch on XZ plane
sketch3 = body3.newObject("Sketcher::SketchObject", "Sketch002")
sketch3.AttachmentSupport = (doc.getObject("XZ_Plane002"), [""])
sketch3.MapMode = "FlatFace"
add_polygon(sketch3, [(-68, 0), (75, 0), (75, 48), (61, 48), (61, 22), (38, 22), (38, 15), (-32, 15), (-57, 5), (-68, 5)])  # lines 0-9
sketch3.addConstraint([
    Sketcher.Constraint("Horizontal", 0),
    Sketcher.Constraint("Vertical", 1),
    Sketcher.Constraint("Horizontal", 2),
    Sketcher.Constraint("Vertical", 3),
    Sketcher.Constraint("Horizontal", 4),
    Sketcher.Constraint("Vertical", 5),
    Sketcher.Constraint("Horizontal", 6),
    Sketcher.Constraint("Horizontal", 8),
    Sketcher.Constraint("Vertical", 9),
    Sketcher.Constraint("PointOnObject", 0, 2, -1),
    Sketcher.Constraint("DistanceX", 6, 2, 6, 1, 70.448719),
    Sketcher.Constraint("DistanceY", 1, 1, 1, 2, 48.06052),
    Sketcher.Constraint("DistanceY", 3, 2, 3, 1, 25.679719),
    Sketcher.Constraint("DistanceY", 9, 2, 9, 1, 5.220141),
    Sketcher.Constraint("Distance", 7, 27.096752),
    Sketcher.Constraint("DistanceX", 0, 1, 0, 2, 142.263767),
    Sketcher.Constraint("DistanceX", 2, 2, 2, 1, 14.007125),
    Sketcher.Constraint("DistanceX", 4, 2, 4, 1, 22.138503),
    Sketcher.Constraint("DistanceX", 8, 2, 8, 1, 10.378786),
    Sketcher.Constraint("DistanceX", -1, 1, 2, 2, 60.621452),
])
revolution3 = body3.newObject("PartDesign::Revolution", "Revolution002")
revolution3.Profile = sketch3
revolution3.ReferenceAxis = (sketch3, ["H_Axis"])
revolution3.Angle = 360
body4 = doc.addObject("PartDesign::Body", "Body003")

# Sketch on an angled plane
sketch4 = body4.newObject("Sketcher::SketchObject", "Sketch003")
sketch4.Placement = App.Placement(Vector(0, 0, 0), App.Rotation(Vector(1, 0, 0), Vector(0, -0.173647963, 0.984807791), Vector(0, -0.984807791, -0.173647963), "ZXY"))
add_polygon(sketch4, [(-10, 17), (20, 17), (20, 36), (39, 36), (39, 42), (49, 42), (49, 55), (-29, 55), (-29, 38), (-10, 38)])  # lines 0-9
sketch4.addConstraint([
    Sketcher.Constraint("Horizontal", 0),
    Sketcher.Constraint("Vertical", 1),
    Sketcher.Constraint("Horizontal", 2),
    Sketcher.Constraint("Vertical", 3),
    Sketcher.Constraint("Horizontal", 4),
    Sketcher.Constraint("Vertical", 5),
    Sketcher.Constraint("Horizontal", 6),
    Sketcher.Constraint("Vertical", 7),
    Sketcher.Constraint("Horizontal", 8),
    Sketcher.Constraint("Vertical", 9),
    Sketcher.Constraint("Equal", 2, 1),
    Sketcher.Constraint("DistanceX", 0, 1, 0, 2, 30.219941),
    Sketcher.Constraint("DistanceX", 2, 1, 2, 2, 18.981121),
    Sketcher.Constraint("DistanceY", 5, 1, 5, 2, 12.73733),
    Sketcher.Constraint("DistanceX", 4, 1, 4, 2, 10.239814),
    Sketcher.Constraint("DistanceX", 6, 2, 6, 1, 77.922494),
    Sketcher.Constraint("DistanceY", 3, 1, 3, 2, 5.994036),
    Sketcher.Constraint("DistanceY", 7, 2, 7, 1, 17.482612),
    Sketcher.Constraint("DistanceX", -1, 1, 0, 2, 19.960251),
    Sketcher.Constraint("DistanceY", -1, 1, 3, 2, 42.332891),
])
revolution4 = body4.newObject("PartDesign::Revolution", "Revolution003")
revolution4.Profile = sketch4
revolution4.ReferenceAxis = (sketch4, ["H_Axis"])
revolution4.Angle = 360
body5 = doc.addObject("PartDesign::Body", "Body004")

# Sketch on XY plane
sketch5 = body5.newObject("Sketcher::SketchObject", "Sketch004")
sketch5.AttachmentSupport = (doc.getObject("XY_Plane004"), [""])
sketch5.MapMode = "FlatFace"
sketch5.AttachmentOffset = App.Placement(Vector(0, 0, 125), App.Rotation())
sketch5.addGeometry([
    Part.LineSegment(Vector(18, 0, 0), Vector(18, -60, 0)),  # 0
    Part.LineSegment(Vector(18, -60, 0), Vector(87, -60, 0)),  # 1
    Part.ArcOfCircle(Part.Circle(Vector(18, -188, 0), Vector(0, 0, 1), 145), math.radians(-78), math.radians(61)),  # 2
    Part.LineSegment(Vector(49, -329, 0), Vector(-127, -369, 0)),  # 3
    Part.LineSegment(Vector(-127, -369, 0), Vector(-127, -436, 0)),  # 4
    Part.LineSegment(Vector(-127, -436, 0), Vector(194, -436, 0)),  # 5
    Part.LineSegment(Vector(194, -436, 0), Vector(194, -343, 0)),  # 6
    Part.ArcOfCircle(Part.Circle(Vector(14, -217, 0), Vector(0, 0, 1), 220), math.radians(-35), math.radians(81)),  # 7
    Part.LineSegment(Vector(48, 0, 0), Vector(18, 0, 0)),  # 8
], False)
sketch5.addConstraint([
    Sketcher.Constraint("Coincident", 0, 2, 1, 1),
    Sketcher.Constraint("Coincident", 1, 2, 2, 2),
    Sketcher.Constraint("Tangent", 2, 1, 3, 1),
    Sketcher.Constraint("Coincident", 3, 2, 4, 1),
    Sketcher.Constraint("Coincident", 4, 2, 5, 1),
    Sketcher.Constraint("Coincident", 5, 2, 6, 1),
    Sketcher.Constraint("Coincident", 6, 2, 7, 1),
    Sketcher.Constraint("Coincident", 7, 2, 8, 1),
    Sketcher.Constraint("Coincident", 8, 2, 0, 1),
    Sketcher.Constraint("Vertical", 0),
    Sketcher.Constraint("Horizontal", 1),
    Sketcher.Constraint("Vertical", 4),
    Sketcher.Constraint("Horizontal", 5),
    Sketcher.Constraint("Vertical", 6),
    Sketcher.Constraint("Horizontal", 8),
    Sketcher.Constraint("PointOnObject", 7, 2, -1),
    Sketcher.Constraint("Radius", 2, 145.225929),
    Sketcher.Constraint("Radius", 7, 219.918218),
    Sketcher.Constraint("DistanceY", 4, 2, 4, 1, 67.59663),
    Sketcher.Constraint("DistanceY", 6, 1, 6, 2, 92.837609),
    Sketcher.Constraint("DistanceX", -1, 1, 7, 3, 13.946299),
    Sketcher.Constraint("DistanceY", 4, 2, -1, 1, 436.114199),
    Sketcher.Constraint("DistanceX", 1, 1, 1, 2, 69.521195),
    Sketcher.Constraint("DistanceX", 5, 1, 5, 2, 321.591082),
    Sketcher.Constraint("DistanceX", 8, 2, 8, 1, 30.324285),
    Sketcher.Constraint("DistanceY", 0, 2, 0, 1, 60.030005),
    Sketcher.Constraint("DistanceY", 7, 3, -1, 1, 217.27556),
    Sketcher.Constraint("DistanceX", 0, 2, 2, 3, 0.212259),
])
pad1 = body5.newObject("PartDesign::Pad", "Pad")
pad1.Profile = sketch5
pad1.Length = 25

doc.recompute()
